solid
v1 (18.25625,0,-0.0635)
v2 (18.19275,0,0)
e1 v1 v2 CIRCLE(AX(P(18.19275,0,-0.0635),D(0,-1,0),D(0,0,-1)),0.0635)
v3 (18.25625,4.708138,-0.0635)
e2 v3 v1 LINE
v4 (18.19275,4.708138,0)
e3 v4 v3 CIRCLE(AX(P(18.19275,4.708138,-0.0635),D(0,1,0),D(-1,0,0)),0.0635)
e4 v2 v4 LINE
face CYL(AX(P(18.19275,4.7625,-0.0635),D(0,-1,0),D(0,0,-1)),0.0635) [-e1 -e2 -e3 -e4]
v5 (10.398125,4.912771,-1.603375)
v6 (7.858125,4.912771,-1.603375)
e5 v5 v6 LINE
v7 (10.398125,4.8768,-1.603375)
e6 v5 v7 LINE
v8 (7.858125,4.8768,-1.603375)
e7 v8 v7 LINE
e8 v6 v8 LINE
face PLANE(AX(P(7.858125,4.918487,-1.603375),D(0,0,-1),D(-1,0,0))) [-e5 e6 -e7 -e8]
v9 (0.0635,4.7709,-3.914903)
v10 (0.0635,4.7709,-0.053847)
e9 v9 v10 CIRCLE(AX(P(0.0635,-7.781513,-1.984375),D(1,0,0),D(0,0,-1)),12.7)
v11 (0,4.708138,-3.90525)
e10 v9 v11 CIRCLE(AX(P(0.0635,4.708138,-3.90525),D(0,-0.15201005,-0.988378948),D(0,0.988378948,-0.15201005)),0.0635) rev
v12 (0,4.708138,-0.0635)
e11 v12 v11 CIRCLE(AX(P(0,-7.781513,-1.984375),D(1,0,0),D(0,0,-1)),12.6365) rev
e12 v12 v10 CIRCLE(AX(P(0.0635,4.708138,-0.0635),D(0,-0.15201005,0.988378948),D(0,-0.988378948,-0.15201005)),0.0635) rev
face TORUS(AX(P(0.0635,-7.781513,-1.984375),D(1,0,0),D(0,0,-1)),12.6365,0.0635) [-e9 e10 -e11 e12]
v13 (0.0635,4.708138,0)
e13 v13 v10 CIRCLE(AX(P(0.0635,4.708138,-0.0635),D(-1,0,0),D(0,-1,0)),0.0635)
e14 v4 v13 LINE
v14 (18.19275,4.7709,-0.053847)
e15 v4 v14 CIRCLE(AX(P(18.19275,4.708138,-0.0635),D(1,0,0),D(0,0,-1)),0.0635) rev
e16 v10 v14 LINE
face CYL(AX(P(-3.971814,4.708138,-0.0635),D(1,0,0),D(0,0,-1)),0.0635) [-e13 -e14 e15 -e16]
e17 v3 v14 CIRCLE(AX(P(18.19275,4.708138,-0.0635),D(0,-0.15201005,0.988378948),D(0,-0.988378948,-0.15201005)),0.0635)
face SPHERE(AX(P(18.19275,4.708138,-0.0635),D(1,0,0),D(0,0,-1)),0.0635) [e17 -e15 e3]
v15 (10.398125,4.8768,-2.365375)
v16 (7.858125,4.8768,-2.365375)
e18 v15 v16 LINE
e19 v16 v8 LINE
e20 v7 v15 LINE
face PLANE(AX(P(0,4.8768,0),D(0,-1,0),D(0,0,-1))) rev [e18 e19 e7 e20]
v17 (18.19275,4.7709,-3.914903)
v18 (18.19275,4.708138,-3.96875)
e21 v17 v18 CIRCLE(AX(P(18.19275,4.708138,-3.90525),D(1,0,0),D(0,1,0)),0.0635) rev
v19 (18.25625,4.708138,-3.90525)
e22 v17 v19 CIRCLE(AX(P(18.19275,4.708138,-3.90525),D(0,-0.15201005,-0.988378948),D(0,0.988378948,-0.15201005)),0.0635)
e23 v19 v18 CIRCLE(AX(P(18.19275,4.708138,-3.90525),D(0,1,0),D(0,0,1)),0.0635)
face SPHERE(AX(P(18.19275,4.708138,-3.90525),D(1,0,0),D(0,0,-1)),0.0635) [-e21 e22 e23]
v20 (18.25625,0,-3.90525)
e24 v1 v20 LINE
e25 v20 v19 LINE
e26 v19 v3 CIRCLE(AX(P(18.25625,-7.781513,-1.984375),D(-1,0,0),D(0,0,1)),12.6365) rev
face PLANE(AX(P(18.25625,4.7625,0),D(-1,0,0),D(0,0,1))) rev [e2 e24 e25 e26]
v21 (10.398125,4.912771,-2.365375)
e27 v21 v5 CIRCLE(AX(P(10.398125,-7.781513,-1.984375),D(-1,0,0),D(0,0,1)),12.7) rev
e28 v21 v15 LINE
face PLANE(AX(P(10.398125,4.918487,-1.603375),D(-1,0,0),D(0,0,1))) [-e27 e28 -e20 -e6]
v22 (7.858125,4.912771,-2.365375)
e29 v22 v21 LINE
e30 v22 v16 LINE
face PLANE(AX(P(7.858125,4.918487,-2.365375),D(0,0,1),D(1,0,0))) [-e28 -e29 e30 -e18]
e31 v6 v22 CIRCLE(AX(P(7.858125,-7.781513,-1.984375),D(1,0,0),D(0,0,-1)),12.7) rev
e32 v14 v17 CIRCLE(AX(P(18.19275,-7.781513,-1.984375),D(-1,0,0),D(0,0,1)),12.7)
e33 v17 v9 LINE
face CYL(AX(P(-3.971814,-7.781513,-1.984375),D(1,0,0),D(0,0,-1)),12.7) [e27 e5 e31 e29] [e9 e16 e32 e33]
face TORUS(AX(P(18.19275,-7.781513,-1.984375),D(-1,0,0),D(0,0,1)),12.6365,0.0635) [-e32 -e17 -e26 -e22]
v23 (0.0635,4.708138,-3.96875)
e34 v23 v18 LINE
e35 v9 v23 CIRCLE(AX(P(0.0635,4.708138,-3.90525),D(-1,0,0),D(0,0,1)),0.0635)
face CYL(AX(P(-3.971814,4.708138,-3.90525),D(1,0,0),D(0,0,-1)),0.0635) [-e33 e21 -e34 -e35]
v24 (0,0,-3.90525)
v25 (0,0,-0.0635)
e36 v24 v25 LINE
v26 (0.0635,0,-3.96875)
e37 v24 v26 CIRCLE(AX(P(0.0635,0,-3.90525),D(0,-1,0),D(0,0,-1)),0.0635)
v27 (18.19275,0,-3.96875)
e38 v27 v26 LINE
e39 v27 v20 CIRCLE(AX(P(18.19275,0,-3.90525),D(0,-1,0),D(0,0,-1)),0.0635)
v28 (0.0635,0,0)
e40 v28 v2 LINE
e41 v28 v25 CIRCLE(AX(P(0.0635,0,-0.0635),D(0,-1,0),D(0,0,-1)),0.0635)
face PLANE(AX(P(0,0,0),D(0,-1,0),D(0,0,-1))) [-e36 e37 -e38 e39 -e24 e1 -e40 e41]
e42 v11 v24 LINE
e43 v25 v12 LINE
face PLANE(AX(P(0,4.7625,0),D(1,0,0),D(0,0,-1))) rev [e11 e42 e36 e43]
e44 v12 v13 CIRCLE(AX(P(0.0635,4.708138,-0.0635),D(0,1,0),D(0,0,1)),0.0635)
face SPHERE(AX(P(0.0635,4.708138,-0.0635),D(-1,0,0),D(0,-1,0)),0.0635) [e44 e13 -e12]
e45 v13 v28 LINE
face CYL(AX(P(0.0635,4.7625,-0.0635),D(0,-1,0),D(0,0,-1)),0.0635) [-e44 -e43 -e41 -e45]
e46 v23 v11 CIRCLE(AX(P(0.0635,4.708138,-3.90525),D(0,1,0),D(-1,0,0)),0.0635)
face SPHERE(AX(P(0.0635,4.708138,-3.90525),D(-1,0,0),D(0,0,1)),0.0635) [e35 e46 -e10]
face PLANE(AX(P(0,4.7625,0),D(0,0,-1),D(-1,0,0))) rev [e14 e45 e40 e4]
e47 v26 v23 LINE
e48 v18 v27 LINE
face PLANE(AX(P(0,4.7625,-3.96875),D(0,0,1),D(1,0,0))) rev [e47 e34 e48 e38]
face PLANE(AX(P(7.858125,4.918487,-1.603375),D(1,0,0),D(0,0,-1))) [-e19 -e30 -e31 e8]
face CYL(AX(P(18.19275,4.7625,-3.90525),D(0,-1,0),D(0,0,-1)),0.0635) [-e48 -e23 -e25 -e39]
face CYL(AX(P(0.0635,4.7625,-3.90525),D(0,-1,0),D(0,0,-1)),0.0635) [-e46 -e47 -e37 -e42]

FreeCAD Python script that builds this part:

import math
import FreeCAD as App
import Part
import Sketcher

V = App.Vector
Q = App.Units.Quantity


def edges_at(feature, points):
    """Names of the edges that pass closest to the given points."""
    edges = feature.Shape.Edges
    near = lambda p: min(range(len(edges)), key=lambda i: edges[i].distToShape(Part.Vertex(*p))[0])
    return sorted({f"Edge{near(p) + 1}" for p in points})

doc = App.newDocument("Part")
params = doc.addObject("Spreadsheet::Sheet", "Params")
for row, (alias, value) in enumerate([
    ("sketch1_width", "0.71875 in"),
    ("sketch1_height", "0.15625 in"),
    ("pad1_length", "0.1875 in"),
    ("sketch2_radius", "0.5 in"),
    ("sketch2_height", "0.15625 in"),
    ("pad2_length", "0.71875 in"),
    ("sketch3_width", "0.1 in"),
    ("sketch3_height", "0.03 in"),
    ("fillet_radius", "0.0025 in"),
], start=1):
    params.set(f"A{row}", alias)
    params.set(f"B{row}", "=" + value)
    params.setAlias(f"B{row}", alias)

body = doc.addObject("PartDesign::Body", "Body")

sketch1 = body.newObject("Sketcher::SketchObject", "Sketch")
sketch1.AttachmentSupport = (doc.getObject("XZ_Plane"), [""])
sketch1.MapMode = "FlatFace"
sketch1.addGeometry(Part.LineSegment(V(0, -3.96875, 0), V(0, 0, 0)), False)
sketch1.addGeometry(Part.LineSegment(V(0, 0, 0), V(18.25625, 0, 0)), False)
sketch1.addGeometry(Part.LineSegment(V(18.25625, 0, 0), V(18.25625, -3.96875, 0)), False)
sketch1.addGeometry(Part.LineSegment(V(18.25625, -3.96875, 0), V(0, -3.96875, 0)), False)
sketch1.addConstraint(Sketcher.Constraint("Coincident", 0, 2, 1, 1))
sketch1.addConstraint(Sketcher.Constraint("Coincident", 1, 2, 2, 1))
sketch1.addConstraint(Sketcher.Constraint("Coincident", 2, 2, 3, 1))
sketch1.addConstraint(Sketcher.Constraint("Coincident", 3, 2, 0, 1))
sketch1.addConstraint(Sketcher.Constraint("Vertical", 0))
sketch1.addConstraint(Sketcher.Constraint("Horizontal", 1))
sketch1.addConstraint(Sketcher.Constraint("Vertical", 2))
sketch1.addConstraint(Sketcher.Constraint("Horizontal", 3))
sketch1.addConstraint(Sketcher.Constraint("Coincident", 0, 2, -1, 1))
sketch1.addConstraint(Sketcher.Constraint("DistanceX", 1, 1, 1, 2, Q("0.71875 in")))
sketch1.addConstraint(Sketcher.Constraint("DistanceY", 0, 1, 0, 2, Q("0.15625 in")))
sketch1.setExpression("Constraints[9]", "Params.sketch1_width")
sketch1.setExpression("Constraints[10]", "Params.sketch1_height")
pad1 = body.newObject("PartDesign::Pad", "Pad")
pad1.Profile = sketch1
pad1.setExpression("Length", "Params.pad1_length")
pad1.Reversed = True

sketch2 = body.newObject("Sketcher::SketchObject", "Sketch001")
sketch2.AttachmentSupport = (doc.getObject("YZ_Plane"), [""])
sketch2.MapMode = "FlatFace"
sketch2.AttachmentOffset = App.Placement(V(0, 0, 0.71875 * 25.4), App.Rotation())
sketch2.addGeometry(Part.LineSegment(V(4.7625, 0, 0), V(4.7625, -3.96875, 0)), False)
sketch2.addGeometry(Part.ArcOfCircle(Part.Circle(V(-7.781513, -1.984375, 0), V(0, 0, 1), 12.7), math.radians(-8.989299), math.radians(8.989299)), False)
sketch2.addConstraint(Sketcher.Constraint("Coincident", 0, 1, 1, 2))
sketch2.addConstraint(Sketcher.Constraint("Coincident", 1, 1, 0, 2))
sketch2.addConstraint(Sketcher.Constraint("Vertical", 0))
sketch2.addConstraint(Sketcher.Constraint("PointOnObject", 0, 1, -1))
sketch2.addConstraint(Sketcher.Constraint("Radius", 1, Q("0.5 in")))
sketch2.addConstraint(Sketcher.Constraint("DistanceY", 0, 2, 0, 1, Q("0.15625 in")))
sketch2.addConstraint(Sketcher.Constraint("DistanceX", -1, 1, 0, 1, Q("0.1875 in")))
sketch2.setExpression("Constraints[4]", "Params.sketch2_radius")
sketch2.setExpression("Constraints[5]", "Params.sketch2_height")
pad2 = body.newObject("PartDesign::Pad", "Pad001")
pad2.Profile = sketch2
pad2.setExpression("Length", "Params.pad2_length")
pad2.Reversed = True

sketch3 = body.newObject("Sketcher::SketchObject", "Sketch002")
sketch3.AttachmentSupport = (doc.getObject("XZ_Plane"), [""])
sketch3.MapMode = "FlatFace"
sketch3.AttachmentOffset = App.Placement(V(0, 0, -0.192 * 25.4), App.Rotation())
sketch3.addGeometry(Part.LineSegment(V(7.858125, -2.365375, 0), V(7.858125, -1.603375, 0)), False)
sketch3.addGeometry(Part.LineSegment(V(7.858125, -1.603375, 0), V(10.398125, -1.603375, 0)), False)
sketch3.addGeometry(Part.LineSegment(V(10.398125, -1.603375, 0), V(10.398125, -2.365375, 0)), False)
sketch3.addGeometry(Part.LineSegment(V(10.398125, -2.365375, 0), V(7.858125, -2.365375, 0)), False)
sketch3.addConstraint(Sketcher.Constraint("Coincident", 0, 2, 1, 1))
sketch3.addConstraint(Sketcher.Constraint("Coincident", 1, 2, 2, 1))
sketch3.addConstraint(Sketcher.Constraint("Coincident", 2, 2, 3, 1))
sketch3.addConstraint(Sketcher.Constraint("Coincident", 3, 2, 0, 1))
sketch3.addConstraint(Sketcher.Constraint("Vertical", 0))
sketch3.addConstraint(Sketcher.Constraint("Horizontal", 1))
sketch3.addConstraint(Sketcher.Constraint("Vertical", 2))
sketch3.addConstraint(Sketcher.Constraint("Horizontal", 3))
sketch3.addConstraint(Sketcher.Constraint("DistanceX", 1, 1, 1, 2, Q("0.1 in")))
sketch3.addConstraint(Sketcher.Constraint("DistanceY", 0, 1, 0, 2, Q("0.03 in")))
sketch3.addConstraint(Sketcher.Constraint("DistanceX", -1, 1, 0, 2, Q("7.858125 mm")))
sketch3.addConstraint(Sketcher.Constraint("DistanceY", 0, 2, -1, 1, Q("1.603375 mm")))
sketch3.setExpression("Constraints[8]", "Params.sketch3_width")
sketch3.setExpression("Constraints[9]", "Params.sketch3_height")
pocket1 = body.newObject("PartDesign::Pocket", "Pocket")
pocket1.Profile = sketch3
pocket1.Type = "ThroughAll"
doc.recompute()

fillet = body.newObject("PartDesign::Fillet", "Fillet")
fillet.Base = (pocket1, edges_at(pocket1, [
    (18.256, 4.918, -1.984),
    (0, 4.918, -1.984),
    (9.128, 4.763, -3.969),
    (0, 2.381, -3.969),
    (18.256, 2.381, -3.969),
    (18.256, 2.381, 0),
    (0, 2.381, 0),
    (9.128, 4.763, 0),
]))
fillet.setExpression("Radius", "Params.fillet_radius")

doc.recompute()
